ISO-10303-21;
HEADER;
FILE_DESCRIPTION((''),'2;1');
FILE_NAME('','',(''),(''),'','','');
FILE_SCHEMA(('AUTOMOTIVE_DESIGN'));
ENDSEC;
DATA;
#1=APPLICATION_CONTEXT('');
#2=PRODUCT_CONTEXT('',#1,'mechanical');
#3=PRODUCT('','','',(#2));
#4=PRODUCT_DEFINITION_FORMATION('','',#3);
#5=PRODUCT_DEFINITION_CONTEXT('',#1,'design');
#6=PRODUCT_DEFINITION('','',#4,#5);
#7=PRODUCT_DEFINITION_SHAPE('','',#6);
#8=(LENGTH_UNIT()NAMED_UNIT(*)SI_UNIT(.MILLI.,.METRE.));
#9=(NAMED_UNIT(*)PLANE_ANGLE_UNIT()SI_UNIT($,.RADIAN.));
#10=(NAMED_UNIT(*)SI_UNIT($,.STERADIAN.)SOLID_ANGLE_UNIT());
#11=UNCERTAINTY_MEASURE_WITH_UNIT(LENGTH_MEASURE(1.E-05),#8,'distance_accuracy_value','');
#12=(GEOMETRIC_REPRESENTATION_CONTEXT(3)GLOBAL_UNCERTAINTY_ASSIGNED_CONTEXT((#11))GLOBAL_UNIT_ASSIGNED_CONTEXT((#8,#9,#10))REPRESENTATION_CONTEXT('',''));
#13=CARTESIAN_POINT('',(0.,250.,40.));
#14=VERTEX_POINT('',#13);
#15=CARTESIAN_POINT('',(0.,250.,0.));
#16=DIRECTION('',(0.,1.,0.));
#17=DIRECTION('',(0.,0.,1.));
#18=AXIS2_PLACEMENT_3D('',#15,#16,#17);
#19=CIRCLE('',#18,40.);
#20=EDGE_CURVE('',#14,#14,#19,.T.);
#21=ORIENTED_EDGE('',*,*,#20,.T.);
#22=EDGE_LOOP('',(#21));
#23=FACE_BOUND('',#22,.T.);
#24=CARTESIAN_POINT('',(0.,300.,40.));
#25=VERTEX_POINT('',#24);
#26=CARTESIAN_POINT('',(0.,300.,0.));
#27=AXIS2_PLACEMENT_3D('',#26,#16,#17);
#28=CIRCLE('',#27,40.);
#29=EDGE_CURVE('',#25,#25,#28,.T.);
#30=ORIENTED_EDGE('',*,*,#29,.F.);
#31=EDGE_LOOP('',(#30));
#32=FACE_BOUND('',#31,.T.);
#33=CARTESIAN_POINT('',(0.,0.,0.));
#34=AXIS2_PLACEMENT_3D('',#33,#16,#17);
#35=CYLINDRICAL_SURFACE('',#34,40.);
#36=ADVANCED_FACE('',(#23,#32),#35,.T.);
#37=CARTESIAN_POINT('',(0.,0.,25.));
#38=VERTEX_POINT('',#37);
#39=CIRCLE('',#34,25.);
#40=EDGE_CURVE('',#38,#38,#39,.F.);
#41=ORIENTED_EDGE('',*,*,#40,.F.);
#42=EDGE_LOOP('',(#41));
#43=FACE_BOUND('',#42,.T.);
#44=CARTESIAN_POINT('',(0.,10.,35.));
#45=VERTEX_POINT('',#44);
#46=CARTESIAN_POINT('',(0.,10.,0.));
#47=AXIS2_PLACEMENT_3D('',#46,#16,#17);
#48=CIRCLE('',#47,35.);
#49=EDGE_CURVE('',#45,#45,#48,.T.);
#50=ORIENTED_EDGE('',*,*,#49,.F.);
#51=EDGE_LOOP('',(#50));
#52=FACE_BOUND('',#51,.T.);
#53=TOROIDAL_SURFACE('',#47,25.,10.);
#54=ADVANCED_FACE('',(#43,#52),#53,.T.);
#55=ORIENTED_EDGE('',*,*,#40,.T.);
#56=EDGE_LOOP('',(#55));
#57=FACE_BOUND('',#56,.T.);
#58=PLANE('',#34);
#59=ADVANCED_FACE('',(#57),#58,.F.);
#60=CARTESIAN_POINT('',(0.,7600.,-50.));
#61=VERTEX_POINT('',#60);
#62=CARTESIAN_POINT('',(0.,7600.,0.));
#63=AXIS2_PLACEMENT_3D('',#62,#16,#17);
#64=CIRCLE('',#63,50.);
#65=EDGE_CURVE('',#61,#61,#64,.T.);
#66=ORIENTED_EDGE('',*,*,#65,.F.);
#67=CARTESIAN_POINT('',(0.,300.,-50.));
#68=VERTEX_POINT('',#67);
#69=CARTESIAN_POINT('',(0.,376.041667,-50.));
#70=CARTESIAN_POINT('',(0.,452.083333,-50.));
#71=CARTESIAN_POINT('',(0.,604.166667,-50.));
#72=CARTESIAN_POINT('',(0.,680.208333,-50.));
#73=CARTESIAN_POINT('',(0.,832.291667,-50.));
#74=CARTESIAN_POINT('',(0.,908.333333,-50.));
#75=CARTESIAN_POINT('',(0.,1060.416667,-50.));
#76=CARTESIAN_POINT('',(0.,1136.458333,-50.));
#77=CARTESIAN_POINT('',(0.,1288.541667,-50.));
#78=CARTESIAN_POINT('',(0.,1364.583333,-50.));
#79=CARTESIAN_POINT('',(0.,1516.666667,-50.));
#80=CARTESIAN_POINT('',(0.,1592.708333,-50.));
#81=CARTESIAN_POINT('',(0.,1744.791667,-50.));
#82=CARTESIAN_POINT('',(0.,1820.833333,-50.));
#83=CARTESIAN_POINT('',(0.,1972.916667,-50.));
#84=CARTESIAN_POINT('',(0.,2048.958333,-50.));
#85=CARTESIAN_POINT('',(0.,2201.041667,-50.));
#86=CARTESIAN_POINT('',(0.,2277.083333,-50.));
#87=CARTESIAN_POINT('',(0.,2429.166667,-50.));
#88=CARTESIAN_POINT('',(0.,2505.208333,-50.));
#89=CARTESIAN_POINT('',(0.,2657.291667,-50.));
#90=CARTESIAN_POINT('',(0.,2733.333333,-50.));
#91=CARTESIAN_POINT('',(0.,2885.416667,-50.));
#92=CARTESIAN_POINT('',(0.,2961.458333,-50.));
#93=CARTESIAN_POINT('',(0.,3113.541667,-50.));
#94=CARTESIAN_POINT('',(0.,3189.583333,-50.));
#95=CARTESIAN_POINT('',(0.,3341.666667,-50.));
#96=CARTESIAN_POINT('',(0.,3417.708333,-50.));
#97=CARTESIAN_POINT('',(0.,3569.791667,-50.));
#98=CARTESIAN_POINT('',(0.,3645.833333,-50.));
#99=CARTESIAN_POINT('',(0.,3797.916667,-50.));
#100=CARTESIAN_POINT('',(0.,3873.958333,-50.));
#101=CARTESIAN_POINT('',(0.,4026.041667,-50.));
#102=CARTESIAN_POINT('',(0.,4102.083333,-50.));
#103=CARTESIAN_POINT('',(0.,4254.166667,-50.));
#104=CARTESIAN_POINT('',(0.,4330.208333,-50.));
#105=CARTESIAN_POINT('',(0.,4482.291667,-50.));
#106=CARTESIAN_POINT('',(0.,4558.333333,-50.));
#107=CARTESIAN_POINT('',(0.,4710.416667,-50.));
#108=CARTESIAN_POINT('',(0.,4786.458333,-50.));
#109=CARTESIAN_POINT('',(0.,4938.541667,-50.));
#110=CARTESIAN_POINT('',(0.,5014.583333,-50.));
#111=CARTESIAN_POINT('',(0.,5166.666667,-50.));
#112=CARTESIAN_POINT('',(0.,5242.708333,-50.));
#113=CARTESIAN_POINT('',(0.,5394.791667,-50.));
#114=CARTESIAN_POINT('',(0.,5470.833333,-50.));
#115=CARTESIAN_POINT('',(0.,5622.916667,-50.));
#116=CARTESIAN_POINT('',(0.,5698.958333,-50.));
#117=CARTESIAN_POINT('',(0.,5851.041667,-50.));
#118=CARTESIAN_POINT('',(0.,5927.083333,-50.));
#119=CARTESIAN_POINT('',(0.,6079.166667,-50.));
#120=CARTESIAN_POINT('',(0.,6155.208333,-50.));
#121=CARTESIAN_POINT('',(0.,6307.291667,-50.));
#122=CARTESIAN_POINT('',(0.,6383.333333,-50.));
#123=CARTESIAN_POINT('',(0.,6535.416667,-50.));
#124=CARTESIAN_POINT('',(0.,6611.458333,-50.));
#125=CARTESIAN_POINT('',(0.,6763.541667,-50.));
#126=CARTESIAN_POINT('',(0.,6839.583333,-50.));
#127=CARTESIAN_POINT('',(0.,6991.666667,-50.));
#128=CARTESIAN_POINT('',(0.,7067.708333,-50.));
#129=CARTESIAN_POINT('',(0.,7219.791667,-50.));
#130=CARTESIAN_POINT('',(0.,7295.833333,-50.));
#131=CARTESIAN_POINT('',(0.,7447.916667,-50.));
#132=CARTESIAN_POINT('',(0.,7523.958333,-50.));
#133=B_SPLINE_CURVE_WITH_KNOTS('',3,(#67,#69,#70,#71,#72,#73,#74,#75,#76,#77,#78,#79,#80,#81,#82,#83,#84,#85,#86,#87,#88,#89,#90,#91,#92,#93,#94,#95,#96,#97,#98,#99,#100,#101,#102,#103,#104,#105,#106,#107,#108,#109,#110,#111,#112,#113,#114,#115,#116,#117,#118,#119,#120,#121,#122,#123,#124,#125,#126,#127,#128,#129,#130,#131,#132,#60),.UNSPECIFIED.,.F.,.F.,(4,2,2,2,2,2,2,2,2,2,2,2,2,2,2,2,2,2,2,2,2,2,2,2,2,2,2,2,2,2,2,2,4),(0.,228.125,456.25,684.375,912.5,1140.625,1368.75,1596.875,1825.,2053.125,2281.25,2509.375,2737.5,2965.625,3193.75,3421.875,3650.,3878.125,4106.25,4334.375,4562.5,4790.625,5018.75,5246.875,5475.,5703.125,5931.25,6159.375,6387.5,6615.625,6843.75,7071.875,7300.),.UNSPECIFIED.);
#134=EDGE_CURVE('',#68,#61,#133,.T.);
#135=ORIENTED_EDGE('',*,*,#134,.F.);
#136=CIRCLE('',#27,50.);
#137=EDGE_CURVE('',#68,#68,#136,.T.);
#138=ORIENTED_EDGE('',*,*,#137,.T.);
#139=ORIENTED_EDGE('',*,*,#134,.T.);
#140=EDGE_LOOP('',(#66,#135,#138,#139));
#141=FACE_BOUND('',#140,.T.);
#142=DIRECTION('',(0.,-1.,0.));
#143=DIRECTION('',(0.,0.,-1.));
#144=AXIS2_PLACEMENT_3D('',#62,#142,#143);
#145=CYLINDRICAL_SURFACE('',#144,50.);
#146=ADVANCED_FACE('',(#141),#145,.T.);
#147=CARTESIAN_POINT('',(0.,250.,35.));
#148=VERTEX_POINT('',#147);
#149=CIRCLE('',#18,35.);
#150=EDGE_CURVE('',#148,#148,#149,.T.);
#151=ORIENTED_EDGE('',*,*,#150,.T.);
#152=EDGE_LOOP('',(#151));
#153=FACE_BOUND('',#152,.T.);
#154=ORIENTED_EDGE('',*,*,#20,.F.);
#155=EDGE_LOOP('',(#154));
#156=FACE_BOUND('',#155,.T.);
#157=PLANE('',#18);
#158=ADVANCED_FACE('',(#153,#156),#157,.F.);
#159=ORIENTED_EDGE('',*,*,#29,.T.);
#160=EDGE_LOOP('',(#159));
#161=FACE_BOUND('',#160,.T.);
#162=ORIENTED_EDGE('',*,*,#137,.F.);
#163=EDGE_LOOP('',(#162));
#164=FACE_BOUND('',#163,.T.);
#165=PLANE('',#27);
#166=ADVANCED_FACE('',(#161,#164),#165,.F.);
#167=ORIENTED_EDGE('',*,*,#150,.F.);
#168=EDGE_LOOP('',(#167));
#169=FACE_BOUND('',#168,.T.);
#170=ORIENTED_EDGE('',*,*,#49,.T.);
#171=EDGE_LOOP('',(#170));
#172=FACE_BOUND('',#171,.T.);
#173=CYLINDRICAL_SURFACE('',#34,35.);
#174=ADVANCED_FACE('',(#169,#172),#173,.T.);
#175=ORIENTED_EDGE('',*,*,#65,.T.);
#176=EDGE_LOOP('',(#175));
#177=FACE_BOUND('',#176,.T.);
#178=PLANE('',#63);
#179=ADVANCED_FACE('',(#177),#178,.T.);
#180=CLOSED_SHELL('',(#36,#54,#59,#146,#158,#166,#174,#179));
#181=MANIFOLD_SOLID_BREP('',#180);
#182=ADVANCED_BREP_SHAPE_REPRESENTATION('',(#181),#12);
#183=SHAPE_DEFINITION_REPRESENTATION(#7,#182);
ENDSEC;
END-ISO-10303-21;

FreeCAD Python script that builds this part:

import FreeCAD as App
import Part
import Sketcher

V = App.Vector


def edges_at(feature, points):
    """Names of the edges that pass closest to the given points."""
    edges = feature.Shape.Edges
    near = lambda p: min(range(len(edges)), key=lambda i: edges[i].distToShape(Part.Vertex(*p))[0])
    return sorted({f"Edge{near(p) + 1}" for p in points})

doc = App.newDocument("Part")
params = doc.addObject("Spreadsheet::Sheet", "Params")
for row, (alias, value) in enumerate([
    ("sketch1_diameter", "100 mm"),
    ("pad1_length", "7600 mm"),
    ("sketch2_diameter", "100 mm"),
    ("sketch2_diameter2", "80 mm"),
    ("sketch3_diameter", "80 mm"),
    ("sketch3_diameter2", "70 mm"),
    ("fillet_radius", "10 mm"),
], start=1):
    params.set(f"A{row}", alias)
    params.set(f"B{row}", "=" + value)
    params.setAlias(f"B{row}", alias)

body = doc.addObject("PartDesign::Body", "Body")

# Sketch on XZ plane
sketch1 = doc.addObject("Sketcher::SketchObject", "Sketch")
body.addObject(sketch1)
sketch1.AttachmentSupport = (doc.XZ_Plane, [""])
sketch1.MapMode = "FlatFace"
sketch1.addGeometry(Part.Circle(V(0, 0, 0), V(0, 0, 1), 50), False)
sketch1.addConstraint([
    Sketcher.Constraint("Coincident", 0, 3, -1, 1),
    Sketcher.Constraint("Diameter", 0, 100.0),
])
sketch1.setExpression("Constraints[1]", "Params.sketch1_diameter")
pad1 = doc.addObject("PartDesign::Pad", "Pad")
body.addObject(pad1)
pad1.Profile = sketch1
pad1.setExpression("Length", "Params.pad1_length")
pad1.Reversed = True

# Sketch on XZ plane
sketch2 = doc.addObject("Sketcher::SketchObject", "Sketch001")
body.addObject(sketch2)
sketch2.AttachmentSupport = (doc.XZ_Plane, [""])
sketch2.MapMode = "FlatFace"
sketch2.AttachmentOffset = App.Placement(V(0, 0, -300), App.Rotation())
sketch2.addGeometry([
    Part.Circle(V(0, 0, 0), V(0, 0, 1), 50),
    Part.Circle(V(0, 0, 0), V(0, 0, 1), 40),
], False)
sketch2.addConstraint([
    Sketcher.Constraint("Coincident", 0, 3, -1, 1),
    Sketcher.Constraint("Coincident", 1, 3, -1, 1),
    Sketcher.Constraint("Diameter", 0, 100.0),
    Sketcher.Constraint("Diameter", 1, 80.0),
])
sketch2.setExpression("Constraints[2]", "Params.sketch2_diameter")
sketch2.setExpression("Constraints[3]", "Params.sketch2_diameter2")
pocket1 = doc.addObject("PartDesign::Pocket", "Pocket")
body.addObject(pocket1)
pocket1.Profile = sketch2
pocket1.Type = "ThroughAll"
pocket1.Reversed = True

# Sketch on XZ plane
sketch3 = doc.addObject("Sketcher::SketchObject", "Sketch002")
body.addObject(sketch3)
sketch3.AttachmentSupport = (doc.XZ_Plane, [""])
sketch3.MapMode = "FlatFace"
sketch3.AttachmentOffset = App.Placement(V(0, 0, -250), App.Rotation())
sketch3.addGeometry([
    Part.Circle(V(0, 0, 0), V(0, 0, 1), 40),
    Part.Circle(V(0, 0, 0), V(0, 0, 1), 35),
], False)
sketch3.addConstraint([
    Sketcher.Constraint("Coincident", 0, 3, -1, 1),
    Sketcher.Constraint("Coincident", 1, 3, -1, 1),
    Sketcher.Constraint("Diameter", 0, 80.0),
    Sketcher.Constraint("Diameter", 1, 70.0),
])
sketch3.setExpression("Constraints[2]", "Params.sketch3_diameter")
sketch3.setExpression("Constraints[3]", "Params.sketch3_diameter2")
pocket2 = doc.addObject("PartDesign::Pocket", "Pocket001")
body.addObject(pocket2)
pocket2.Profile = sketch3
pocket2.Type = "ThroughAll"
pocket2.Reversed = True
doc.recompute()

fillet = doc.addObject("PartDesign::Fillet", "Fillet")
body.addObject(fillet)
fillet.Base = (pocket2, edges_at(pocket2, [(0, 0, -35)]))
fillet.setExpression("Radius", "Params.fillet_radius")

doc.recompute()
